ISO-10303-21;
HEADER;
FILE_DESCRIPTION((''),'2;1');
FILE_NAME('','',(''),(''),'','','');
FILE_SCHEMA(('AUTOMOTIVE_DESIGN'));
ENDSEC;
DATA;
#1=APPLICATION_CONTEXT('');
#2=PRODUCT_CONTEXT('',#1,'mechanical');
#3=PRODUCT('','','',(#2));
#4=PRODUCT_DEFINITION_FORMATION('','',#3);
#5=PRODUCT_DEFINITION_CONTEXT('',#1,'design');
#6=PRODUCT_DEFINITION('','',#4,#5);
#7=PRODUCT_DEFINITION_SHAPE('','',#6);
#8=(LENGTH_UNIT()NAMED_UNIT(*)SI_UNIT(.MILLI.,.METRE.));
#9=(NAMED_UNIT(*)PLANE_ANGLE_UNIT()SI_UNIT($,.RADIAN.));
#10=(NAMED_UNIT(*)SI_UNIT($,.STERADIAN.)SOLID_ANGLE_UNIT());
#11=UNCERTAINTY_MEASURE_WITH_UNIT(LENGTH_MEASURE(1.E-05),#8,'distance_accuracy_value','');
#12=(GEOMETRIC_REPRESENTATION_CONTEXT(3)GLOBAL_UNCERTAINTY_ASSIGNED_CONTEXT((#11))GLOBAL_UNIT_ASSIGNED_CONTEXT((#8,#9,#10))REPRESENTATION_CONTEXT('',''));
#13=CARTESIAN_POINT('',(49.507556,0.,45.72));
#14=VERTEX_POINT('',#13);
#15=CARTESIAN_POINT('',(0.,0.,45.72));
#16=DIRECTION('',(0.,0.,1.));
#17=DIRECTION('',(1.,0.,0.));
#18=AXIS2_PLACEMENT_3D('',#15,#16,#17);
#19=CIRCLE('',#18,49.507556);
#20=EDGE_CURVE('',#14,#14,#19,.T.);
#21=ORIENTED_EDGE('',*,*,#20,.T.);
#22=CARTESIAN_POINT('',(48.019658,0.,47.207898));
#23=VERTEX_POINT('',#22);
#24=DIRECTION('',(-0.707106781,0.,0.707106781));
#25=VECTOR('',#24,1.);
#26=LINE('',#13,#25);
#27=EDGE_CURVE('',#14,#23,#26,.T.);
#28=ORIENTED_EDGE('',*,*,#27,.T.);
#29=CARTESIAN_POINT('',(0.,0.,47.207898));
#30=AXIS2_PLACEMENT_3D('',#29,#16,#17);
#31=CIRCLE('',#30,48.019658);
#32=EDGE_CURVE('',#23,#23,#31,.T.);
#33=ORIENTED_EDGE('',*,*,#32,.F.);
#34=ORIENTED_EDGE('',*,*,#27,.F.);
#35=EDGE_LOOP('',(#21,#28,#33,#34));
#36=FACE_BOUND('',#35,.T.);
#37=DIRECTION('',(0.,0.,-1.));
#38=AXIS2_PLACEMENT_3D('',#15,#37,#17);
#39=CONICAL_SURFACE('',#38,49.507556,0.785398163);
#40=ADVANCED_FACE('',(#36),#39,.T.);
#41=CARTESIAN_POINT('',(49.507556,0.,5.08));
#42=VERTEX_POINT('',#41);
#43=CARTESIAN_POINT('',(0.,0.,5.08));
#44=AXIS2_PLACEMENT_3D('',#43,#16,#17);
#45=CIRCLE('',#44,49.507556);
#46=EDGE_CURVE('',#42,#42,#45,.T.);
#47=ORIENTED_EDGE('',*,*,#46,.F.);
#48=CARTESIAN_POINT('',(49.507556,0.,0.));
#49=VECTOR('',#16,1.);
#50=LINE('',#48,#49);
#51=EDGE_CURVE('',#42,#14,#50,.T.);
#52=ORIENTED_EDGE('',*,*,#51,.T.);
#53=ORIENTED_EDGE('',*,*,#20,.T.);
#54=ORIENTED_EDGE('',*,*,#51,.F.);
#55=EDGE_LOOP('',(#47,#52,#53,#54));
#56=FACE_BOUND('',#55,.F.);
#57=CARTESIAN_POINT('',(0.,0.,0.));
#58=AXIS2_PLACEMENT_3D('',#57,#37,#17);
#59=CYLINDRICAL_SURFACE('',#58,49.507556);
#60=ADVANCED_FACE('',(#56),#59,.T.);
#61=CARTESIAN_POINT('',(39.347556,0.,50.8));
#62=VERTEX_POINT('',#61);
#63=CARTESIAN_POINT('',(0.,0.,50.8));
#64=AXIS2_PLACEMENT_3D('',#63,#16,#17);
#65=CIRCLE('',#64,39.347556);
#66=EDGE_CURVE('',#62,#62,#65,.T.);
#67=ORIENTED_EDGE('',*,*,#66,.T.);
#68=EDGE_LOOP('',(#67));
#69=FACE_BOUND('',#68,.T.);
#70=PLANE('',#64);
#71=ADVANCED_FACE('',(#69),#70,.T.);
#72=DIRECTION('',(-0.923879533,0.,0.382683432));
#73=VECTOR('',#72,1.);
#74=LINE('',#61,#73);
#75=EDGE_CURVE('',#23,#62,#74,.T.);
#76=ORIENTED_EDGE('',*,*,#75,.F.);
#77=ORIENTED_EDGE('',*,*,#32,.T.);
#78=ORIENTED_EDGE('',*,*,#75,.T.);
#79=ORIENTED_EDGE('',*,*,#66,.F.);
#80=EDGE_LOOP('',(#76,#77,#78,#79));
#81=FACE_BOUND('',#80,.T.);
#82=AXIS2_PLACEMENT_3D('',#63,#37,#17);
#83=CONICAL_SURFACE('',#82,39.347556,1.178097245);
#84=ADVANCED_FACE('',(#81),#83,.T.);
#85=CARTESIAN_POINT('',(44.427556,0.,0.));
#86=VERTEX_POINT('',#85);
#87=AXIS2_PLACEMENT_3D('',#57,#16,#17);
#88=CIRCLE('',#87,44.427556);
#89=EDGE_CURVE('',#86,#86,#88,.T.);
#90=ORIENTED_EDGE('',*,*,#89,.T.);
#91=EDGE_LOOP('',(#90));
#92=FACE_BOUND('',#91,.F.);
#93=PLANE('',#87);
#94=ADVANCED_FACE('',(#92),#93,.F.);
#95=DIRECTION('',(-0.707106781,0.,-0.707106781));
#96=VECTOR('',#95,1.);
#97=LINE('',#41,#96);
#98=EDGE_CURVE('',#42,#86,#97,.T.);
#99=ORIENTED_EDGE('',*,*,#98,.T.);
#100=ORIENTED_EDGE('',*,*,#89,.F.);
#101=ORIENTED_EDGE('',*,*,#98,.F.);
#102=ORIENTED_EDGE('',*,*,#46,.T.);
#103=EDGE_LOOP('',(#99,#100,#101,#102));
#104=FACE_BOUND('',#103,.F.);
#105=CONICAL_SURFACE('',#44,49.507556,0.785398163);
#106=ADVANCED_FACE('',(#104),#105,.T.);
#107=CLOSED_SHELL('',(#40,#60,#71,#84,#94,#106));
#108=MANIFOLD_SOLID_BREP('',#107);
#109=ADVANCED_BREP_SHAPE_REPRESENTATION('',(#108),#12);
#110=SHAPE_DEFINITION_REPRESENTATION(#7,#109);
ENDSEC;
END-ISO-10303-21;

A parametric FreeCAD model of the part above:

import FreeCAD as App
import Part
import Sketcher

V = App.Vector
Q = App.Units.Quantity


def edges_at(feature, points):
    """Names of the edges that pass closest to the given points."""
    edges = feature.Shape.Edges
    near = lambda p: min(range(len(edges)), key=lambda i: edges[i].distToShape(Part.Vertex(*p))[0])
    return sorted({f"Edge{near(p) + 1}" for p in points})

doc = App.newDocument("Part")
body = doc.addObject("PartDesign::Body", "Body")

sketch1 = body.newObject("Sketcher::SketchObject", "Sketch")
sketch1.AttachmentSupport = (doc.getObject("XY_Plane"), [""])
sketch1.MapMode = "FlatFace"
sketch1.addGeometry(Part.Circle(V(0, 0, 0), V(0, 0, 1), 50), False)
sketch1.addConstraint(Sketcher.Constraint("Coincident", 0, 3, -1, 1))
sketch1.addConstraint(Sketcher.Constraint("Diameter", 0, Q("99.015112 mm")))
pad1 = body.newObject("PartDesign::Pad", "Pad")
pad1.Profile = sketch1
pad1.Length = Q("2 in")
doc.recompute()

chamfer = body.newObject("PartDesign::Chamfer", "Chamfer")
chamfer.Base = (pad1, edges_at(pad1, [(-49.508, 0, 50.8), (-49.508, 0, 0)]))
chamfer.Size = Q("0.2 in")
doc.recompute()

chamfer2 = body.newObject("PartDesign::Chamfer", "Chamfer001")
chamfer2.Base = (chamfer, edges_at(chamfer, [(-44.428, 0, 50.8)]))
chamfer2.Size = Q("0.2 in")

doc.recompute()
